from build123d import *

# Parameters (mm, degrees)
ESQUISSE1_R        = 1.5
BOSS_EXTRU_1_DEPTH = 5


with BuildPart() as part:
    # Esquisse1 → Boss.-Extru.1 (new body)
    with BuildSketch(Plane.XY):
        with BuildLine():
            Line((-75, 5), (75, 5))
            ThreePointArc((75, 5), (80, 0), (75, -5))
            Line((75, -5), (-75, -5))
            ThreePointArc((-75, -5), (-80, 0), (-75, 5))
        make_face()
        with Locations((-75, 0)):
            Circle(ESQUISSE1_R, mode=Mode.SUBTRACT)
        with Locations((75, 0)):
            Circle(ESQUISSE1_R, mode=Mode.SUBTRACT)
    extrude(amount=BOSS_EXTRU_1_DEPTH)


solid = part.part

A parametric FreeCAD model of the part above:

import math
import FreeCAD as App
import Part
import Sketcher

V = App.Vector

doc = App.newDocument("Part")
body = doc.addObject("PartDesign::Body", "Body")

# Sketch on XY plane
sketch1 = doc.addObject("Sketcher::SketchObject", "Sketch")
body.addObject(sketch1)
sketch1.AttachmentSupport = (doc.XY_Plane, [""])
sketch1.MapMode = "FlatFace"
sketch1.addGeometry([
    Part.LineSegment(V(75, 5, 0), V(-75, 5, 0)),  # 0
    Part.ArcOfCircle(Part.Circle(V(-75, 0, 0), V(0, 0, 1), 5), math.radians(90), math.radians(270)),  # 1
    Part.LineSegment(V(-75, -5, 0), V(75, -5, 0)),  # 2
    Part.ArcOfCircle(Part.Circle(V(75, 0, 0), V(0, 0, 1), 5), math.radians(-90), math.radians(90)),  # 3
    Part.Circle(V(75, 0, 0), V(0, 0, 1), 1.5),  # 4
    Part.Circle(V(-75, 0, 0), V(0, 0, 1), 1.5),  # 5
], False)
sketch1.addConstraint([
    Sketcher.Constraint("Tangent", 0, 2, 1, 1),
    Sketcher.Constraint("Tangent", 1, 2, 2, 1),
    Sketcher.Constraint("Tangent", 2, 2, 3, 1),
    Sketcher.Constraint("Tangent", 3, 2, 0, 1),
    Sketcher.Constraint("Horizontal", 0),
    Sketcher.Constraint("Horizontal", 2),
    Sketcher.Constraint("Coincident", 4, 3, 3, 3),
    Sketcher.Constraint("Coincident", 5, 3, 1, 3),
    Sketcher.Constraint("Equal", 4, 5),
    Sketcher.Constraint("Symmetric", 1, 3, 3, 3, -1, 1),
    Sketcher.Constraint("Diameter", 4, 3.0),
    Sketcher.Constraint("Radius", 1, 5.0),
    Sketcher.Constraint("DistanceX", 0, 2, 0, 1, 150.0),
])
pad1 = doc.addObject("PartDesign::Pad", "Pad")
body.addObject(pad1)
pad1.Profile = sketch1
pad1.Length = 5

doc.recompute()
